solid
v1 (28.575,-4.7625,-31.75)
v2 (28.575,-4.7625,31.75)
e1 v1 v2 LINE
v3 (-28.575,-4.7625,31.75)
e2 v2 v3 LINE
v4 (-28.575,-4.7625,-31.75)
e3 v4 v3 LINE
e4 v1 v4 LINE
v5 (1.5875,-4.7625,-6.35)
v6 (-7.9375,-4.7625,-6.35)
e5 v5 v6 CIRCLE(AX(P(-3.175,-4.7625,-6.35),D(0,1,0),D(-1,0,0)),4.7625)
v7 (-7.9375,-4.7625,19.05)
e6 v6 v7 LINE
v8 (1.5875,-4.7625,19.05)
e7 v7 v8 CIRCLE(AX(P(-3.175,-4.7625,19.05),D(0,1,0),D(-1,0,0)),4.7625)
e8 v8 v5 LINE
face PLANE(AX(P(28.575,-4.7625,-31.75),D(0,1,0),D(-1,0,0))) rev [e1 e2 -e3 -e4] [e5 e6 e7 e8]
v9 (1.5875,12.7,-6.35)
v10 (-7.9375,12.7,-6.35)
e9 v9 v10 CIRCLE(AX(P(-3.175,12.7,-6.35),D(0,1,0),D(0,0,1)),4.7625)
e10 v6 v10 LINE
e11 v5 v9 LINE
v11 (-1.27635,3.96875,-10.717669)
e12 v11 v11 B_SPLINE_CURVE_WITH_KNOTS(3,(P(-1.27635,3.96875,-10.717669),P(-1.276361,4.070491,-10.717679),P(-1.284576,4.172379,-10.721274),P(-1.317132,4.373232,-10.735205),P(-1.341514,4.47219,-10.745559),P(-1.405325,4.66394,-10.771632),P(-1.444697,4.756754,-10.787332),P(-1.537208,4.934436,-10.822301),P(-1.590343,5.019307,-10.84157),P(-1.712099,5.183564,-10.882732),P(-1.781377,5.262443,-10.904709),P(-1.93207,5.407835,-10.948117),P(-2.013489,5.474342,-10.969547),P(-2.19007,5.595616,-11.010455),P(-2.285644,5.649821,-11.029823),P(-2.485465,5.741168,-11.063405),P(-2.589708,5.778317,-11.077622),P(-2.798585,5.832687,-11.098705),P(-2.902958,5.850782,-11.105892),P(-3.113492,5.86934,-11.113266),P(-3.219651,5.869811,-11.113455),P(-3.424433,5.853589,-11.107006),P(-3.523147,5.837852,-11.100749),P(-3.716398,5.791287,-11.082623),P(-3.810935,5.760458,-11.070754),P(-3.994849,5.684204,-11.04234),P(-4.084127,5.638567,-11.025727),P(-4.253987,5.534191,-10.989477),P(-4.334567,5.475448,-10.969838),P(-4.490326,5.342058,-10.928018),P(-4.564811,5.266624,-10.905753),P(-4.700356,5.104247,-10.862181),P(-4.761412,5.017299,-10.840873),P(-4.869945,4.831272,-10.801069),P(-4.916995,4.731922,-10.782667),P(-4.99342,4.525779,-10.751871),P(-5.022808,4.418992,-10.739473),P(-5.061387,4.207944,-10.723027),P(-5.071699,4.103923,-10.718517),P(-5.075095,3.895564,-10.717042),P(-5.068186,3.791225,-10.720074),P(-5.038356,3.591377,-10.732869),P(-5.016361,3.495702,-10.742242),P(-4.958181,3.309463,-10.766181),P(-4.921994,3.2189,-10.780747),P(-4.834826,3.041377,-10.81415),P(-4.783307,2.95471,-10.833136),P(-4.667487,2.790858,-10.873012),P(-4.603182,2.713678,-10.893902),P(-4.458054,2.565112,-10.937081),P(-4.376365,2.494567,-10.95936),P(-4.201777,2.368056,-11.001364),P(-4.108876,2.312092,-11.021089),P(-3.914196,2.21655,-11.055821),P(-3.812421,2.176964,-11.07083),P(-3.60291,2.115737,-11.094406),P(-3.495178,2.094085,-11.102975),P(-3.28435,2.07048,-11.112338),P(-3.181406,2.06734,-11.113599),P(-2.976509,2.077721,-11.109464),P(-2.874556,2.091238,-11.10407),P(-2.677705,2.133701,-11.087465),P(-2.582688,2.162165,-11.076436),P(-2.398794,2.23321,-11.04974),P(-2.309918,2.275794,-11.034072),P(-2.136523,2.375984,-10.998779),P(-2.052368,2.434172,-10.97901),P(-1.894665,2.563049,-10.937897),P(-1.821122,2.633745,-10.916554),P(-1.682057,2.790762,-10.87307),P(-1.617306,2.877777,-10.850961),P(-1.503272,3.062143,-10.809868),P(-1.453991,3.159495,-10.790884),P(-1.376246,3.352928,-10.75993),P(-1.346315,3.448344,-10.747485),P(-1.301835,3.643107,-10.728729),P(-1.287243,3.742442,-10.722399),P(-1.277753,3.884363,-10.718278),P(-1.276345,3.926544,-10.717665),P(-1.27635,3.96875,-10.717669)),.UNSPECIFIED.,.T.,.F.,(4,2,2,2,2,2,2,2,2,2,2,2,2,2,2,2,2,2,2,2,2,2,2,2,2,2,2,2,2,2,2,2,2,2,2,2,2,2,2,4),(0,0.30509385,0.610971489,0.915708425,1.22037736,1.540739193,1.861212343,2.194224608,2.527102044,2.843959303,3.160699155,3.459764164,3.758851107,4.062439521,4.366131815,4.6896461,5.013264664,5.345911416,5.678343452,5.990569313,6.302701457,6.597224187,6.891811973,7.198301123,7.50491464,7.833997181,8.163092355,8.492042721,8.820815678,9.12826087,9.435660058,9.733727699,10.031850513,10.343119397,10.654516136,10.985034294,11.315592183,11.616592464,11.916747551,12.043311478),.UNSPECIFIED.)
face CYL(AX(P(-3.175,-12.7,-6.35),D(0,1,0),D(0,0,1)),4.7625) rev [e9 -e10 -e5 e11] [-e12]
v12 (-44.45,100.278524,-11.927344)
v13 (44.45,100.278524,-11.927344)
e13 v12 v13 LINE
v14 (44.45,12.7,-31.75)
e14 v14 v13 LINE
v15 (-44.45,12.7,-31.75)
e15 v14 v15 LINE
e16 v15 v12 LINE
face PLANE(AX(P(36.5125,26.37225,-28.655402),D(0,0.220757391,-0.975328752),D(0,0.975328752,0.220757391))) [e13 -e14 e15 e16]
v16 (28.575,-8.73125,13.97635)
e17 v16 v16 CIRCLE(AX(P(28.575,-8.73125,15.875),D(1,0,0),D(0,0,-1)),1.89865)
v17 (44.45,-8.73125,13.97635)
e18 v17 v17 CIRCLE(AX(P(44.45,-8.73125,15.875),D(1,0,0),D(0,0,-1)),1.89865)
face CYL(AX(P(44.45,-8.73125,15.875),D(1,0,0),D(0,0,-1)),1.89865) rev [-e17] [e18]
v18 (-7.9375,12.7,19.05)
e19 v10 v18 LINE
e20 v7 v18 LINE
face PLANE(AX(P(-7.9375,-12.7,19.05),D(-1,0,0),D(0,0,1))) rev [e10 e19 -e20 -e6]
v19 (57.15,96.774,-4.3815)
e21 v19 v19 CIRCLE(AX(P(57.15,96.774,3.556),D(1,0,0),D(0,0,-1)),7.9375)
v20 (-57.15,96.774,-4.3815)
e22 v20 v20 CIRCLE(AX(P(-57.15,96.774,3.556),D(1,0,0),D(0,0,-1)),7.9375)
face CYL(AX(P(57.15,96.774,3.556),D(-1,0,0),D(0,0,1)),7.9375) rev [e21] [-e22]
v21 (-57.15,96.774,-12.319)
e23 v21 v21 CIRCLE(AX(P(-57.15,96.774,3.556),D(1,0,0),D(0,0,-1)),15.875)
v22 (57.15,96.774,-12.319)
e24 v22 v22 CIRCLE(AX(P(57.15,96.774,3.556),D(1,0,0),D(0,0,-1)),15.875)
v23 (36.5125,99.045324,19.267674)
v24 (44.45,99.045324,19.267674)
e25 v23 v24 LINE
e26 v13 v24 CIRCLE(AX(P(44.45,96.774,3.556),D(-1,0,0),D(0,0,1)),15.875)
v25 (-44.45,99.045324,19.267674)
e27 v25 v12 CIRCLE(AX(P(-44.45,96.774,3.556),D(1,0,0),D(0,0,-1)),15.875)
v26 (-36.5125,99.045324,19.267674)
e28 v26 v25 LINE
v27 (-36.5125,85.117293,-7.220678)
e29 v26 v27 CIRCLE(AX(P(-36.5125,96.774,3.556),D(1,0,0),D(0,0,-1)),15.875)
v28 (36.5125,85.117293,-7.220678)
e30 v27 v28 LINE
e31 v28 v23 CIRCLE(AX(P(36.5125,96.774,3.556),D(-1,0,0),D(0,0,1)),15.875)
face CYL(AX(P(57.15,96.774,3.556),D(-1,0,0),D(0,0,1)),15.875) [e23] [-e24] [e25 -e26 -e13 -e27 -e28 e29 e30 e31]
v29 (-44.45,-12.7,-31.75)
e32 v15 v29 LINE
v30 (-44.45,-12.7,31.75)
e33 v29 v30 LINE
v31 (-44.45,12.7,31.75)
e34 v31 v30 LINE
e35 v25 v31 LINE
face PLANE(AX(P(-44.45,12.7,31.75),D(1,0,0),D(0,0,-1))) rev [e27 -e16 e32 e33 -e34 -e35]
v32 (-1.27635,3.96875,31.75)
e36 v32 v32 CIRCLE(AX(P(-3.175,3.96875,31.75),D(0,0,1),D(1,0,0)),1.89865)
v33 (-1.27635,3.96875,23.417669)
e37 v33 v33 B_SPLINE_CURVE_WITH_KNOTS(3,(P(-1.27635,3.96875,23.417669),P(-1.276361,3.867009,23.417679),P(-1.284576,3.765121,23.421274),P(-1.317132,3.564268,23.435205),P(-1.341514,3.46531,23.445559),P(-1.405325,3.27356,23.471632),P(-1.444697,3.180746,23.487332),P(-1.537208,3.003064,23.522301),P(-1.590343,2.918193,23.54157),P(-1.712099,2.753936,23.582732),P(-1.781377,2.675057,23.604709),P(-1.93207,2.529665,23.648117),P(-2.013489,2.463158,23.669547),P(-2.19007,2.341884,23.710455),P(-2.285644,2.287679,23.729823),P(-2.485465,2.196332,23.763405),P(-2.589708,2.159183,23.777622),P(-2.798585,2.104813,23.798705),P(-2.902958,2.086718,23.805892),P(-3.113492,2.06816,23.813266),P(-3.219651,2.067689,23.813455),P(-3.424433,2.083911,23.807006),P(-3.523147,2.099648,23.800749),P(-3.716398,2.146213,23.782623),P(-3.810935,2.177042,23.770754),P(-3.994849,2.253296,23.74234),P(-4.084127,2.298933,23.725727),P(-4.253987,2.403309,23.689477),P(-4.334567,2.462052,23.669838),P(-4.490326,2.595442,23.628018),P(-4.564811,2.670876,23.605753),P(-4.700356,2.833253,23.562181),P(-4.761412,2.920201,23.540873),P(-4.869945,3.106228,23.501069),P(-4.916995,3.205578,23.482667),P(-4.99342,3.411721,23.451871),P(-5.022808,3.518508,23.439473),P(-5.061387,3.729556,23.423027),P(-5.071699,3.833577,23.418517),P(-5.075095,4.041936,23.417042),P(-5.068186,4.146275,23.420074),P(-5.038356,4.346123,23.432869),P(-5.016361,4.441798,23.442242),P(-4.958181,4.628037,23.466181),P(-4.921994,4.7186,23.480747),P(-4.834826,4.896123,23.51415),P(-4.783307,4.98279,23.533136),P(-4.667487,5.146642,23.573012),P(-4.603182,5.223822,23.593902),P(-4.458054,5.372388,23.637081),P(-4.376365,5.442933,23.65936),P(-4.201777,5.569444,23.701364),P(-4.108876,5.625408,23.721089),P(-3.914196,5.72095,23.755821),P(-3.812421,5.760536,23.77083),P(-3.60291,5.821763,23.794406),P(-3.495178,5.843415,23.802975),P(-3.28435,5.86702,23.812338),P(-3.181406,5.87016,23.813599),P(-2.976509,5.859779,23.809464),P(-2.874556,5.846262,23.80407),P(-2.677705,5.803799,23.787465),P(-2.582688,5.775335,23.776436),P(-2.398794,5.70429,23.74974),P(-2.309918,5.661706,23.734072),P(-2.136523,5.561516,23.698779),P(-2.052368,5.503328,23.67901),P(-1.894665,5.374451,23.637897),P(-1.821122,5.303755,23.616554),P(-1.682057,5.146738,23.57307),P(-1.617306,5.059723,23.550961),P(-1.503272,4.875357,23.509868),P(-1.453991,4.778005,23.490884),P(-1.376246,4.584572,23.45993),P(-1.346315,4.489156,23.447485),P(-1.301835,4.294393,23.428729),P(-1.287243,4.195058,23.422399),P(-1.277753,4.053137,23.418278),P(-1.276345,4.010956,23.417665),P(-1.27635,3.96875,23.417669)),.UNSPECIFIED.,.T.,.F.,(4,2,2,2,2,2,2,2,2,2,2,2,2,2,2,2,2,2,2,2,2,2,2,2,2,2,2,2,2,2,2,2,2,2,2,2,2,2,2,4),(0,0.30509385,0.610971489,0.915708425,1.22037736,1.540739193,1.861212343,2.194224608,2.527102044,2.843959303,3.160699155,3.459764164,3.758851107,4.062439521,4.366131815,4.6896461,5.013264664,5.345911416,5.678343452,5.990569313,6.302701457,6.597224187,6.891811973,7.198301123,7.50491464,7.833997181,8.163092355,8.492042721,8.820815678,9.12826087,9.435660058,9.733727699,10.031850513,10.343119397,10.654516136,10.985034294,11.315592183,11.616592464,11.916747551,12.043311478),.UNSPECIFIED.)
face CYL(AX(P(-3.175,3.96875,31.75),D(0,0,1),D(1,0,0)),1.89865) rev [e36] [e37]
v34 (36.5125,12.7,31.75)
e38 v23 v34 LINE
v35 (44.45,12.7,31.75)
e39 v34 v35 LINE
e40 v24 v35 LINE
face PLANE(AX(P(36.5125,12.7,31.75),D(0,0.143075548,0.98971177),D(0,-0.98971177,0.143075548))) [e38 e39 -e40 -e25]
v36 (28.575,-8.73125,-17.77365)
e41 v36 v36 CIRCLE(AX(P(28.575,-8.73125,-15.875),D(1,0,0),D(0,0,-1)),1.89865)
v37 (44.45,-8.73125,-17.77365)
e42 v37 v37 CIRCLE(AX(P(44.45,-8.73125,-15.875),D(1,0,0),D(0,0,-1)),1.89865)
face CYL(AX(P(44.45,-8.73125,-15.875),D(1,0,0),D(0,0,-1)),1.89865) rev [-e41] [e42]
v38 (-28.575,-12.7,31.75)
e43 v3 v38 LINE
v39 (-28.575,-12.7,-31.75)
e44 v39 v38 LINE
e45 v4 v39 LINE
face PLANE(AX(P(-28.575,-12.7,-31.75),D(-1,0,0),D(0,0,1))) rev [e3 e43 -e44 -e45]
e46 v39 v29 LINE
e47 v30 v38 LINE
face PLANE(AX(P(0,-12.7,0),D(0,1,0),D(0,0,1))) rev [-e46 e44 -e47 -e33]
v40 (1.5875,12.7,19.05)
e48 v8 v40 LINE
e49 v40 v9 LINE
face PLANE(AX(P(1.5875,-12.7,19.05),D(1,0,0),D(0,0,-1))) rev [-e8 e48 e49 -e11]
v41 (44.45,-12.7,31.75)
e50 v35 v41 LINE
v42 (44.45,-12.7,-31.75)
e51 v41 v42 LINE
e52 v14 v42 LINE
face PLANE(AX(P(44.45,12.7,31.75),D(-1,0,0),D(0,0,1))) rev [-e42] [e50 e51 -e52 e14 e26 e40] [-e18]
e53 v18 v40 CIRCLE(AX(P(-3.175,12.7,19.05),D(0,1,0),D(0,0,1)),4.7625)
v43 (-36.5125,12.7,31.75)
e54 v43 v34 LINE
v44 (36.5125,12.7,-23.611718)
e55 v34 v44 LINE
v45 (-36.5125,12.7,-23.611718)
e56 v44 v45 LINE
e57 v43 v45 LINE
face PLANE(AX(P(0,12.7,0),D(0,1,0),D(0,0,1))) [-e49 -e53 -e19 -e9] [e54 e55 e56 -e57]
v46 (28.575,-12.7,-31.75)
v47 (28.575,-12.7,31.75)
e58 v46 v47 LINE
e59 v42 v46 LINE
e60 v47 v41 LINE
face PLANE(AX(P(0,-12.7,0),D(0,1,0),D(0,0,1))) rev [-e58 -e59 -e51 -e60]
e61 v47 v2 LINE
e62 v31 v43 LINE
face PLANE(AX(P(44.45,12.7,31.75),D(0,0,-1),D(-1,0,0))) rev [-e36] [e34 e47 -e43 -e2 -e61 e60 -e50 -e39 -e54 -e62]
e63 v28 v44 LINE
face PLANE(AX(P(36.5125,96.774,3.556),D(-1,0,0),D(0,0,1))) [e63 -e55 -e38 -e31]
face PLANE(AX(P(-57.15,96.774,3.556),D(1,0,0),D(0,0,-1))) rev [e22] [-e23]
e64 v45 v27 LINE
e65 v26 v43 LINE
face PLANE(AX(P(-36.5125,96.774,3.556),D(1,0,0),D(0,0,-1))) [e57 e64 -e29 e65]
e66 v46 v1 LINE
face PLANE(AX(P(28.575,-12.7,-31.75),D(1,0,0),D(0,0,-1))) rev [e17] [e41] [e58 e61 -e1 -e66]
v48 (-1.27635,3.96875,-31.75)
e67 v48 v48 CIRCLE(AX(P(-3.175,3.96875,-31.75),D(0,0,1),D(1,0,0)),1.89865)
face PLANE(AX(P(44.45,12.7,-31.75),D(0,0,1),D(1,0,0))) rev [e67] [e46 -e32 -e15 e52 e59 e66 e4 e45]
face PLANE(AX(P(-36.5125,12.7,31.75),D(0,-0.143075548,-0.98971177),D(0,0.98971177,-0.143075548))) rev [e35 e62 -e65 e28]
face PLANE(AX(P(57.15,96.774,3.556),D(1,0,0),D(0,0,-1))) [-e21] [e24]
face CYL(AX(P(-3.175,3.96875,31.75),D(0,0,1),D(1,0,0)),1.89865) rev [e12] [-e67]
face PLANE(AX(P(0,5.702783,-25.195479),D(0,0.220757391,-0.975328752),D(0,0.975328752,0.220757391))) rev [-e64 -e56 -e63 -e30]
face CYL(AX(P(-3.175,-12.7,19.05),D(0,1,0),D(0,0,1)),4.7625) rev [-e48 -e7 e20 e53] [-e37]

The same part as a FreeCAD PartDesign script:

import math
import FreeCAD as App
import Part
import Sketcher

V = App.Vector
Q = App.Units.Quantity


def add_polygon(sketch, points):
    """Adds a closed chain of lines whose ends are joined by coincident constraints."""
    first, n = sketch.GeometryCount, len(points)
    for a, b in zip(points, points[1:] + points[:1]):
        sketch.addGeometry(Part.LineSegment(App.Vector(*a, 0), App.Vector(*b, 0)), False)
    for i in range(n):
        sketch.addConstraint(Sketcher.Constraint("Coincident", first + i, 2, first + (i + 1) % n, 1))

doc = App.newDocument("Part")
body = doc.addObject("PartDesign::Body", "Body")

sketch1 = doc.addObject("Sketcher::SketchObject", "Sketch")
body.addObject(sketch1)
sketch1.AttachmentSupport = (doc.XZ_Plane, [""])
sketch1.MapMode = "FlatFace"
add_polygon(sketch1, [(-44, -32), (-44, 32), (44, 32), (44, -32)])
sketch1.addConstraint([
    Sketcher.Constraint("Vertical", 0),
    Sketcher.Constraint("Horizontal", 1),
    Sketcher.Constraint("Vertical", 2),
    Sketcher.Constraint("Horizontal", 3),
    Sketcher.Constraint("Symmetric", 0, 2, 2, 2, -1, 1),
    Sketcher.Constraint("DistanceX", 1, 1, 1, 2, Q("3.5 in")),
    Sketcher.Constraint("DistanceY", 0, 1, 0, 2, Q("2.5 in")),
])
pad1 = doc.addObject("PartDesign::Pad", "Pad")
body.addObject(pad1)
pad1.Profile = sketch1
pad1.Length = Q("1 in")
pad1.Midplane = True

sketch2 = doc.addObject("Sketcher::SketchObject", "Sketch001")
body.addObject(sketch2)
sketch2.AttachmentSupport = (doc.XY_Plane, [""])
sketch2.MapMode = "FlatFace"
sketch2.AttachmentOffset = App.Placement(V(0, 0, 1.25 * 25.4), App.Rotation())
add_polygon(sketch2, [(-29, -5), (-29, -13), (29, -13), (29, -5)])
sketch2.addConstraint([
    Sketcher.Constraint("Vertical", 0),
    Sketcher.Constraint("Horizontal", 1),
    Sketcher.Constraint("Vertical", 2),
    Sketcher.Constraint("Horizontal", 3),
    Sketcher.Constraint("DistanceX", 1, 1, 1, 2, Q("2.25 in")),
    Sketcher.Constraint("DistanceY", 0, 2, -1, 1, Q("0.5 in")),
    Sketcher.Constraint("DistanceY", 0, 2, 0, 1, Q("0.3125 in")),
    Sketcher.Constraint("DistanceX", 0, 2, -1, 1, Q("1.125 in")),
])
pocket1 = doc.addObject("PartDesign::Pocket", "Pocket")
body.addObject(pocket1)
pocket1.Profile = sketch2
pocket1.Type = "ThroughAll"

sketch3 = doc.addObject("Sketcher::SketchObject", "Sketch002")
body.addObject(sketch3)
sketch3.AttachmentSupport = (doc.XY_Plane, [""])
sketch3.MapMode = "FlatFace"
sketch3.AttachmentOffset = App.Placement(V(0, 0, 1.25 * 25.4), App.Rotation())
sketch3.addGeometry(Part.Circle(V(-3.2, 4, 0), V(0, 0, 1), 1.9), False)
sketch3.addConstraint([
    Sketcher.Constraint("Diameter", 0, Q("0.1495 in")),
    Sketcher.Constraint("DistanceX", 0, 3, -1, 1, Q("0.125 in")),
    Sketcher.Constraint("DistanceY", -1, 1, 0, 3, Q("0.15625 in")),
])
doc.recompute()
hole = doc.addObject("PartDesign::Hole", "Hole")
body.addObject(hole)
hole.Profile = sketch3
hole.ThreadType = "None"
hole.Diameter = Q("0.1495 in")
hole.DepthType = "ThroughAll"

sketch4 = doc.addObject("Sketcher::SketchObject", "Sketch003")
body.addObject(sketch4)
sketch4.AttachmentSupport = (doc.XZ_Plane, [""])
sketch4.MapMode = "FlatFace"
sketch4.AttachmentOffset = App.Placement(V(0, 0, -0.5 * 25.4), App.Rotation())
sketch4.addGeometry([
    Part.LineSegment(V(-7.9, -6.3, 0), V(-7.9, 19.1, 0)),
    Part.ArcOfCircle(Part.Circle(V(-3.2, 19.1, 0), V(0, 0, 1), 4.8), math.radians(0), math.radians(180)),
    Part.LineSegment(V(1.6, 19.1, 0), V(1.6, -6.3, 0)),
    Part.ArcOfCircle(Part.Circle(V(-3.2, -6.3, 0), V(0, 0, 1), 4.8), math.radians(180), math.radians(360)),
], False)
sketch4.addConstraint([
    Sketcher.Constraint("Tangent", 0, 2, 1, 2),
    Sketcher.Constraint("Tangent", 1, 1, 2, 1),
    Sketcher.Constraint("Tangent", 2, 2, 3, 2),
    Sketcher.Constraint("Tangent", 3, 1, 0, 1),
    Sketcher.Constraint("Vertical", 0),
    Sketcher.Constraint("Vertical", 2),
    Sketcher.Constraint("DistanceY", 0, 1, 0, 2, Q("1 in")),
    Sketcher.Constraint("Radius", 1, Q("0.1875 in")),
    Sketcher.Constraint("DistanceY", -1, 1, 1, 3, Q("0.75 in")),
    Sketcher.Constraint("DistanceX", 1, 3, -1, 1, Q("0.125 in")),
])
pocket2 = doc.addObject("PartDesign::Pocket", "Pocket001")
body.addObject(pocket2)
pocket2.Profile = sketch4
pocket2.Length = Q("1 in")
pocket2.Reversed = True

sketch5 = doc.addObject("Sketcher::SketchObject", "Sketch004")
body.addObject(sketch5)
sketch5.AttachmentSupport = (doc.YZ_Plane, [""])
sketch5.MapMode = "FlatFace"
sketch5.AttachmentOffset = App.Placement(V(0, 0, 1.75 * 25.4), App.Rotation())
sketch5.addGeometry([
    Part.LineSegment(V(99, 19, 0), V(13, 32, 0)),
    Part.LineSegment(V(13, 32, 0), V(13, -32, 0)),
    Part.LineSegment(V(13, -32, 0), V(100, -12, 0)),
    Part.ArcOfCircle(Part.Circle(V(97, 4, 0), V(0, 0, 1), 16), math.radians(82), math.radians(283)),
], False)
sketch5.addConstraint([
    Sketcher.Constraint("Coincident", 0, 2, 1, 1),
    Sketcher.Constraint("Coincident", 1, 2, 2, 1),
    Sketcher.Constraint("Tangent", 2, 2, 3, 2),
    Sketcher.Constraint("Tangent", 3, 1, 0, 1),
    Sketcher.Constraint("Vertical", 1),
    Sketcher.Constraint("DistanceY", 1, 2, 1, 1, Q("2.5 in")),
    Sketcher.Constraint("Radius", 3, Q("0.625 in")),
    Sketcher.Constraint("DistanceX", -1, 1, 0, 2, Q("0.5 in")),
    Sketcher.Constraint("DistanceX", -1, 1, 3, 3, Q("3.81 in")),
    Sketcher.Constraint("DistanceY", -1, 1, 3, 3, Q("0.14 in")),
    Sketcher.Constraint("DistanceY", -1, 1, 0, 2, Q("1.25 in")),
])
pad2 = doc.addObject("PartDesign::Pad", "Pad001")
body.addObject(pad2)
pad2.Profile = sketch5
pad2.Length = Q("0.3125 in")
pad2.Reversed = True

sketch6 = doc.addObject("Sketcher::SketchObject", "Sketch005")
body.addObject(sketch6)
sketch6.AttachmentSupport = (doc.YZ_Plane, [""])
sketch6.MapMode = "FlatFace"
sketch6.AttachmentOffset = App.Placement(V(0, 0, -1.4375 * 25.4), App.Rotation())
sketch6.addGeometry([
    Part.LineSegment(V(99, 19, 0), V(13, 32, 0)),
    Part.LineSegment(V(13, 32, 0), V(13, -32, 0)),
    Part.LineSegment(V(13, -32, 0), V(100, -12, 0)),
    Part.ArcOfCircle(Part.Circle(V(97, 4, 0), V(0, 0, 1), 16), math.radians(82), math.radians(283)),
], False)
sketch6.addConstraint([
    Sketcher.Constraint("Coincident", 0, 2, 1, 1),
    Sketcher.Constraint("Coincident", 1, 2, 2, 1),
    Sketcher.Constraint("Tangent", 2, 2, 3, 2),
    Sketcher.Constraint("Tangent", 3, 1, 0, 1),
    Sketcher.Constraint("Vertical", 1),
    Sketcher.Constraint("DistanceY", 1, 2, 1, 1, Q("2.5 in")),
    Sketcher.Constraint("Radius", 3, Q("0.625 in")),
    Sketcher.Constraint("DistanceX", -1, 1, 0, 2, Q("0.5 in")),
    Sketcher.Constraint("DistanceX", -1, 1, 3, 3, Q("3.81 in")),
    Sketcher.Constraint("DistanceY", -1, 1, 3, 3, Q("0.14 in")),
    Sketcher.Constraint("DistanceY", -1, 1, 0, 2, Q("1.25 in")),
])
pad3 = doc.addObject("PartDesign::Pad", "Pad002")
body.addObject(pad3)
pad3.Profile = sketch6
pad3.Length = Q("0.3125 in")
pad3.Reversed = True

sketch7 = doc.addObject("Sketcher::SketchObject", "Sketch006")
body.addObject(sketch7)
sketch7.Placement = App.Placement(V(0, 7.455045, -32.937151), App.Rotation(V(-1, 0, 0), V(0, 0.975328752, 0.220757391), V(0, 0.220757391, -0.975328752), "ZXY"))
add_polygon(sketch7, [(-37, 95), (-37, 5), (37, 5), (37, 95)])
sketch7.addConstraint([
    Sketcher.Constraint("Vertical", 0),
    Sketcher.Constraint("Horizontal", 1),
    Sketcher.Constraint("Vertical", 2),
    Sketcher.Constraint("Horizontal", 3),
    Sketcher.Constraint("DistanceX", 1, 1, 1, 2, Q("2.875 in")),
    Sketcher.Constraint("DistanceX", 0, 2, -1, 1, Q("1.4375 in")),
    Sketcher.Constraint("DistanceY", 0, 2, 0, 1, Q("89.79385 mm")),
    Sketcher.Constraint("DistanceY", -1, 1, 0, 2, Q("5.377628 mm")),
])
pad4 = doc.addObject("PartDesign::Pad", "Pad003")
body.addObject(pad4)
pad4.Profile = sketch7
pad4.Length = Q("0.3125 in")
pad4.Reversed = True

sketch8 = doc.addObject("Sketcher::SketchObject", "Sketch007")
body.addObject(sketch8)
sketch8.AttachmentSupport = (doc.YZ_Plane, [""])
sketch8.MapMode = "FlatFace"
sketch8.addGeometry([
    Part.Circle(V(97, 4, 0), V(0, 0, 1), 16),
    Part.Circle(V(97, 4, 0), V(0, 0, 1), 8),
], False)
sketch8.addConstraint([
    Sketcher.Constraint("Coincident", 1, 3, 0, 3),
    Sketcher.Constraint("Diameter", 0, Q("1.25 in")),
    Sketcher.Constraint("Diameter", 1, Q("0.625 in")),
    Sketcher.Constraint("DistanceX", -1, 1, 0, 3, Q("3.81 in")),
    Sketcher.Constraint("DistanceY", -1, 1, 0, 3, Q("0.14 in")),
])
pad5 = doc.addObject("PartDesign::Pad", "Pad004")
body.addObject(pad5)
pad5.Profile = sketch8
pad5.Length = Q("4.5 in")
pad5.Midplane = True

sketch9 = doc.addObject("Sketcher::SketchObject", "Sketch008")
body.addObject(sketch9)
sketch9.AttachmentSupport = (doc.YZ_Plane, [""])
sketch9.MapMode = "FlatFace"
sketch9.AttachmentOffset = App.Placement(V(0, 0, 1.75 * 25.4), App.Rotation())
sketch9.addGeometry([
    Part.Circle(V(-8.7, 15.9, 0), V(0, 0, 1), 1.9),
    Part.Circle(V(-8.7, -15.9, 0), V(0, 0, 1), 1.9),
], False)
sketch9.addConstraint([
    Sketcher.Constraint("Equal", 0, 1),
    Sketcher.Constraint("Symmetric", 0, 3, 1, 3, -1),
    Sketcher.Constraint("Diameter", 0, Q("0.1495 in")),
    Sketcher.Constraint("DistanceY", 1, 3, 0, 3, Q("1.25 in")),
    Sketcher.Constraint("DistanceX", 0, 3, -1, 1, Q("0.34375 in")),
])
doc.recompute()
hole2 = doc.addObject("PartDesign::Hole", "Hole001")
body.addObject(hole2)
hole2.Profile = sketch9
hole2.ThreadType = "None"
hole2.Diameter = Q("0.1495 in")
hole2.DepthType = "Dimension"
hole2.Depth = Q("0.625 in")
hole2.DrillPoint = "Flat"

doc.recompute()
